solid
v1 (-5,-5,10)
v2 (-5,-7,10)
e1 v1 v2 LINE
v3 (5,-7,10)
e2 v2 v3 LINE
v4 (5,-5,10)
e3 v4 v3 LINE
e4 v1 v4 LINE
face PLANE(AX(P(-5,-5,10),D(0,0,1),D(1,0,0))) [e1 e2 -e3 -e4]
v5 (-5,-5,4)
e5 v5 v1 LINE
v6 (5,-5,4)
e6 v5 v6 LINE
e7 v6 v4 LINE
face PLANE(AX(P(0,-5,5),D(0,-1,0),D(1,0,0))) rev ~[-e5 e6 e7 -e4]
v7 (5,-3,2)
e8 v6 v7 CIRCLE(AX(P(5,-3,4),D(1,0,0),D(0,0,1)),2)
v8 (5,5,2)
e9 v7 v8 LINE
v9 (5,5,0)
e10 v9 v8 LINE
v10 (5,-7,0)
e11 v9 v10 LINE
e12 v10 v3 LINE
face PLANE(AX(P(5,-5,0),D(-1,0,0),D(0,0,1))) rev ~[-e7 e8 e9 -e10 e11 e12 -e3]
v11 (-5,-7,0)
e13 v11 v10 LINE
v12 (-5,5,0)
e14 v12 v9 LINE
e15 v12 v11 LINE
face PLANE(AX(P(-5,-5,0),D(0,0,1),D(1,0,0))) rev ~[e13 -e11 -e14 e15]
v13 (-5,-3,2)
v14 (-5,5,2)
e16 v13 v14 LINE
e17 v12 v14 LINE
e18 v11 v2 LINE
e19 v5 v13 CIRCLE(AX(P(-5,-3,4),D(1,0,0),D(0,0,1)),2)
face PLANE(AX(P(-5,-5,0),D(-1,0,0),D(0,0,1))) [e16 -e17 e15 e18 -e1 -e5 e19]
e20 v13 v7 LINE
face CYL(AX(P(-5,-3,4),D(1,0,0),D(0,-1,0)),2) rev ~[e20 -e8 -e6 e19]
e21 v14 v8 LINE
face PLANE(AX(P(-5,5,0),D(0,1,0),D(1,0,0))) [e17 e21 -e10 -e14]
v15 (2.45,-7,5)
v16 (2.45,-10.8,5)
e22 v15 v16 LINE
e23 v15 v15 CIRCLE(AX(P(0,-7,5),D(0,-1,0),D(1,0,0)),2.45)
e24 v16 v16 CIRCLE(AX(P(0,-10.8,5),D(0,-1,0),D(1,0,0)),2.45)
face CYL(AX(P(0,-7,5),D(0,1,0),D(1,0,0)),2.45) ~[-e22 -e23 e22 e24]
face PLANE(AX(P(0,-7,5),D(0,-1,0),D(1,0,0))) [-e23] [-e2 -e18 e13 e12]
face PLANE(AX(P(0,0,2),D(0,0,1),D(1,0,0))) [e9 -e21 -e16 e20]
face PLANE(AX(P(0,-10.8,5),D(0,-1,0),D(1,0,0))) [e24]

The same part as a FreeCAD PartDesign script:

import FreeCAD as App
import Part
import Sketcher

V = App.Vector
Q = App.Units.Quantity


def edges_at(feature, points):
    """Names of the edges that pass closest to the given points."""
    edges = feature.Shape.Edges
    near = lambda p: min(range(len(edges)), key=lambda i: edges[i].distToShape(Part.Vertex(*p))[0])
    return sorted({f"Edge{near(p) + 1}" for p in points})


def add_polygon(sketch, points):
    """Adds a closed chain of lines whose ends are joined by coincident constraints."""
    first, n = sketch.GeometryCount, len(points)
    for a, b in zip(points, points[1:] + points[:1]):
        sketch.addGeometry(Part.LineSegment(App.Vector(*a, 0), App.Vector(*b, 0)), False)
    for i in range(n):
        sketch.addConstraint(Sketcher.Constraint("Coincident", first + i, 2, first + (i + 1) % n, 1))

doc = App.newDocument("Part")
params = doc.addObject("Spreadsheet::Sheet", "Params")
for row, (alias, value) in enumerate([
    ("sketch1_width", "10 mm"),
    ("pad1_length", "2 mm"),
    ("sketch2_width", "10 mm"),
    ("pad2_length", "2 mm"),
    ("sketch3_diameter", "4.9 mm"),
    ("pad3_length", "3.8 mm"),
    ("fillet_radius", "2 mm"),
], start=1):
    params.set(f"A{row}", alias)
    params.set(f"B{row}", "=" + value)
    params.setAlias(f"B{row}", alias)

body = doc.addObject("PartDesign::Body", "Body")

# Sketch on XY plane
sketch1 = body.newObject("Sketcher::SketchObject", "Sketch")
sketch1.AttachmentSupport = (doc.getObject("XY_Plane"), [""])
sketch1.MapMode = "FlatFace"
add_polygon(sketch1, [(-5, 5), (-5, -5), (5, -5), (5, 5)])  # lines 0-3
sketch1.addConstraint([
    Sketcher.Constraint("Vertical", 0),
    Sketcher.Constraint("Horizontal", 1),
    Sketcher.Constraint("Vertical", 2),
    Sketcher.Constraint("Horizontal", 3),
    Sketcher.Constraint("Symmetric", 0, 2, 2, 2, -1, 1),
    Sketcher.Constraint("Equal", 3, 0),
    Sketcher.Constraint("DistanceX", 1, 1, 1, 2, Q("10 mm")),
])
sketch1.setExpression("Constraints[10]", "Params.sketch1_width")
pad1 = body.newObject("PartDesign::Pad", "Pad")
pad1.Profile = sketch1
pad1.setExpression("Length", "Params.pad1_length")

# Sketch on XZ plane
sketch2 = body.newObject("Sketcher::SketchObject", "Sketch001")
sketch2.AttachmentSupport = (doc.getObject("XZ_Plane"), [""])
sketch2.MapMode = "FlatFace"
sketch2.AttachmentOffset = App.Placement(V(0, 0, 5), App.Rotation())
add_polygon(sketch2, [(-5, 10), (-5, 0), (5, 0), (5, 10)])  # lines 0-3
sketch2.addConstraint([
    Sketcher.Constraint("Vertical", 0),
    Sketcher.Constraint("Horizontal", 1),
    Sketcher.Constraint("Vertical", 2),
    Sketcher.Constraint("Horizontal", 3),
    Sketcher.Constraint("Symmetric", 0, 2, 1, 2, -1, 1),
    Sketcher.Constraint("Equal", 3, 0),
    Sketcher.Constraint("DistanceX", 1, 1, 1, 2, Q("10 mm")),
])
sketch2.setExpression("Constraints[10]", "Params.sketch2_width")
pad2 = body.newObject("PartDesign::Pad", "Pad001")
pad2.Profile = sketch2
pad2.setExpression("Length", "Params.pad2_length")

# Sketch on XZ plane
sketch3 = body.newObject("Sketcher::SketchObject", "Sketch002")
sketch3.AttachmentSupport = (doc.getObject("XZ_Plane"), [""])
sketch3.MapMode = "FlatFace"
sketch3.AttachmentOffset = App.Placement(V(0, 0, 7), App.Rotation())
sketch3.addGeometry(Part.Circle(V(0, 5, 0), V(0, 0, 1), 2.5), False)
sketch3.addConstraint([
    Sketcher.Constraint("PointOnObject", 0, 3, -2),
    Sketcher.Constraint("Diameter", 0, Q("4.9 mm")),
    Sketcher.Constraint("DistanceY", -1, 1, 0, 3, Q("5 mm")),
])
sketch3.setExpression("Constraints[1]", "Params.sketch3_diameter")
pad3 = body.newObject("PartDesign::Pad", "Pad002")
pad3.Profile = sketch3
pad3.setExpression("Length", "Params.pad3_length")
doc.recompute()

fillet = body.newObject("PartDesign::Fillet", "Fillet")
fillet.Base = (pad3, edges_at(pad3, [(0, -5, 2)]))
fillet.setExpression("Radius", "Params.fillet_radius")

doc.recompute()
